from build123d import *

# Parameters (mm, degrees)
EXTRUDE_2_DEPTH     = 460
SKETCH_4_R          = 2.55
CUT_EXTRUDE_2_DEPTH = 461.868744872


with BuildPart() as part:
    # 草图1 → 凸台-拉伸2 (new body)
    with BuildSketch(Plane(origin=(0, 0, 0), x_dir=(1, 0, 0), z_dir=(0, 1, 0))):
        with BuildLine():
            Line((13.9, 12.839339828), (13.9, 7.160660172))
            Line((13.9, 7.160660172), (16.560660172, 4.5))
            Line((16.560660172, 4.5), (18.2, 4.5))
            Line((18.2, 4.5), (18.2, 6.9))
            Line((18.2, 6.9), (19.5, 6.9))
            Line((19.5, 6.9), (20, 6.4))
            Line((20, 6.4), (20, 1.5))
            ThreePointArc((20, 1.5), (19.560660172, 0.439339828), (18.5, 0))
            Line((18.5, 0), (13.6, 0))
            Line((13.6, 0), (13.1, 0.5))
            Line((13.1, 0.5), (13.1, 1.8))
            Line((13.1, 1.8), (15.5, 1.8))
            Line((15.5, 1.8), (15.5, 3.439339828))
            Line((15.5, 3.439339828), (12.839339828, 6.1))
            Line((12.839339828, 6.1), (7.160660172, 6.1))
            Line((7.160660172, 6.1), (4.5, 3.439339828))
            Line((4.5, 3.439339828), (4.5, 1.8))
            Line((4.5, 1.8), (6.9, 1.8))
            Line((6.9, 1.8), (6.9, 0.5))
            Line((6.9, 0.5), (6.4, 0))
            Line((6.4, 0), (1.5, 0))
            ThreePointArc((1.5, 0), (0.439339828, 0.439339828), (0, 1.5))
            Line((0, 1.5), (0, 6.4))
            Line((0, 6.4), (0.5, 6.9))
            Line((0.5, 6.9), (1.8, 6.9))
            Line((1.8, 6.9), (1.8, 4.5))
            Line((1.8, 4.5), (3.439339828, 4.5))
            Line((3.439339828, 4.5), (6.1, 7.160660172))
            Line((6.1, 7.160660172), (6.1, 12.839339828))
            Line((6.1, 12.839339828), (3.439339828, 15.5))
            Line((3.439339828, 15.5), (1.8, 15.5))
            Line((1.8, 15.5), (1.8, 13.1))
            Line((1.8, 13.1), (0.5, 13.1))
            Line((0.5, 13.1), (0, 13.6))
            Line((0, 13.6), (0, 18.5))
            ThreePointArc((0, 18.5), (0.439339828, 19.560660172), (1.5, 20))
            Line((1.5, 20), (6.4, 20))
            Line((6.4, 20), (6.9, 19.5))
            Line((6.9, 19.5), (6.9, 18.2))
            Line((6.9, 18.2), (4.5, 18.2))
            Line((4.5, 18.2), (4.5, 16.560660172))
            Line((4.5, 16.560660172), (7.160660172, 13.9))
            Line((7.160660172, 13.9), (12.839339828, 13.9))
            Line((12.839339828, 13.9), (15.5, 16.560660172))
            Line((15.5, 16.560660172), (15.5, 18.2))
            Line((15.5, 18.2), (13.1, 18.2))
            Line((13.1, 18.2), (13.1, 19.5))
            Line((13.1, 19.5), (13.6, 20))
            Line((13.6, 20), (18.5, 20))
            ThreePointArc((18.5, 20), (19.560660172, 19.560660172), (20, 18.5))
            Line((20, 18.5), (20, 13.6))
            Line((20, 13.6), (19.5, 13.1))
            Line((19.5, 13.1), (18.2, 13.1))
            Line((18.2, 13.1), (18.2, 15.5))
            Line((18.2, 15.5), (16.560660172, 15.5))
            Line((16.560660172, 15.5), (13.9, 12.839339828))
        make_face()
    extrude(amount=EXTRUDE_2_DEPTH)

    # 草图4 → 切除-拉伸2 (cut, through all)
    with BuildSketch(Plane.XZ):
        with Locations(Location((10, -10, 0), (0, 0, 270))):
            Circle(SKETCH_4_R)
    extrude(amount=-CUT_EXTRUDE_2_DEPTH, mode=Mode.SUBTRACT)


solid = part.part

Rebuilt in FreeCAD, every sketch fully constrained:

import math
import FreeCAD as App
import Part
import Sketcher
from FreeCAD import Vector

doc = App.newDocument("Part")
params = doc.addObject("Spreadsheet::Sheet", "Params")
for row, (alias, value) in enumerate([
    ("sketch1_radius", "1.5 mm"),
    ("sketch1_width", "1.3 mm"),
    ("sketch1_width2", "4.9 mm"),
    ("sketch1_width3", "2.4 mm"),
    ("pad1_length", "460 mm"),
    ("sketch2_diameter", "5.1 mm"),
], start=1):
    params.set(f"A{row}", alias)
    params.set(f"B{row}", "=" + value)
    params.setAlias(f"B{row}", alias)

body = doc.addObject("PartDesign::Body", "Body")

# Sketch on XZ plane
sketch1 = body.newObject("Sketcher::SketchObject", "Sketch")
sketch1.AttachmentSupport = (doc.getObject("XZ_Plane"), [""])
sketch1.MapMode = "FlatFace"
sketch1.addGeometry([
    Part.LineSegment(Vector(13.9, -7.16066, 0), Vector(13.9, -12.83934, 0)),  # 0
    Part.LineSegment(Vector(13.9, -12.83934, 0), Vector(16.56066, -15.5, 0)),  # 1
    Part.LineSegment(Vector(16.56066, -15.5, 0), Vector(18.2, -15.5, 0)),  # 2
    Part.LineSegment(Vector(18.2, -15.5, 0), Vector(18.2, -13.1, 0)),  # 3
    Part.LineSegment(Vector(18.2, -13.1, 0), Vector(19.5, -13.1, 0)),  # 4
    Part.LineSegment(Vector(19.5, -13.1, 0), Vector(20, -13.6, 0)),  # 5
    Part.LineSegment(Vector(20, -13.6, 0), Vector(20, -18.5, 0)),  # 6
    Part.ArcOfCircle(Part.Circle(Vector(18.5, -18.5, 0), Vector(0, 0, 1), 1.5), math.radians(-90), math.radians(0)),  # 7
    Part.LineSegment(Vector(18.5, -20, 0), Vector(13.6, -20, 0)),  # 8
    Part.LineSegment(Vector(13.6, -20, 0), Vector(13.1, -19.5, 0)),  # 9
    Part.LineSegment(Vector(13.1, -19.5, 0), Vector(13.1, -18.2, 0)),  # 10
    Part.LineSegment(Vector(13.1, -18.2, 0), Vector(15.5, -18.2, 0)),  # 11
    Part.LineSegment(Vector(15.5, -18.2, 0), Vector(15.5, -16.56066, 0)),  # 12
    Part.LineSegment(Vector(15.5, -16.56066, 0), Vector(12.83934, -13.9, 0)),  # 13
    Part.LineSegment(Vector(12.83934, -13.9, 0), Vector(7.16066, -13.9, 0)),  # 14
    Part.LineSegment(Vector(7.16066, -13.9, 0), Vector(4.5, -16.56066, 0)),  # 15
    Part.LineSegment(Vector(4.5, -16.56066, 0), Vector(4.5, -18.2, 0)),  # 16
    Part.LineSegment(Vector(4.5, -18.2, 0), Vector(6.9, -18.2, 0)),  # 17
    Part.LineSegment(Vector(6.9, -18.2, 0), Vector(6.9, -19.5, 0)),  # 18
    Part.LineSegment(Vector(6.9, -19.5, 0), Vector(6.4, -20, 0)),  # 19
    Part.LineSegment(Vector(6.4, -20, 0), Vector(1.5, -20, 0)),  # 20
    Part.ArcOfCircle(Part.Circle(Vector(1.5, -18.5, 0), Vector(0, 0, 1), 1.5), math.radians(180), math.radians(270)),  # 21
    Part.LineSegment(Vector(0, -18.5, 0), Vector(0, -13.6, 0)),  # 22
    Part.LineSegment(Vector(0, -13.6, 0), Vector(0.5, -13.1, 0)),  # 23
    Part.LineSegment(Vector(0.5, -13.1, 0), Vector(1.8, -13.1, 0)),  # 24
    Part.LineSegment(Vector(1.8, -13.1, 0), Vector(1.8, -15.5, 0)),  # 25
    Part.LineSegment(Vector(1.8, -15.5, 0), Vector(3.43934, -15.5, 0)),  # 26
    Part.LineSegment(Vector(3.43934, -15.5, 0), Vector(6.1, -12.83934, 0)),  # 27
    Part.LineSegment(Vector(6.1, -12.83934, 0), Vector(6.1, -7.16066, 0)),  # 28
    Part.LineSegment(Vector(6.1, -7.16066, 0), Vector(3.43934, -4.5, 0)),  # 29
    Part.LineSegment(Vector(3.43934, -4.5, 0), Vector(1.8, -4.5, 0)),  # 30
    Part.LineSegment(Vector(1.8, -4.5, 0), Vector(1.8, -6.9, 0)),  # 31
    Part.LineSegment(Vector(1.8, -6.9, 0), Vector(0.5, -6.9, 0)),  # 32
    Part.LineSegment(Vector(0.5, -6.9, 0), Vector(0, -6.4, 0)),  # 33
    Part.LineSegment(Vector(0, -6.4, 0), Vector(0, -1.5, 0)),  # 34
    Part.ArcOfCircle(Part.Circle(Vector(1.5, -1.5, 0), Vector(0, 0, 1), 1.5), math.radians(90), math.radians(180)),  # 35
    Part.LineSegment(Vector(1.5, 0, 0), Vector(6.4, 0, 0)),  # 36
    Part.LineSegment(Vector(6.4, 0, 0), Vector(6.9, -0.5, 0)),  # 37
    Part.LineSegment(Vector(6.9, -0.5, 0), Vector(6.9, -1.8, 0)),  # 38
    Part.LineSegment(Vector(6.9, -1.8, 0), Vector(4.5, -1.8, 0)),  # 39
    Part.LineSegment(Vector(4.5, -1.8, 0), Vector(4.5, -3.43934, 0)),  # 40
    Part.LineSegment(Vector(4.5, -3.43934, 0), Vector(7.16066, -6.1, 0)),  # 41
    Part.LineSegment(Vector(7.16066, -6.1, 0), Vector(12.83934, -6.1, 0)),  # 42
    Part.LineSegment(Vector(12.83934, -6.1, 0), Vector(15.5, -3.43934, 0)),  # 43
    Part.LineSegment(Vector(15.5, -3.43934, 0), Vector(15.5, -1.8, 0)),  # 44
    Part.LineSegment(Vector(15.5, -1.8, 0), Vector(13.1, -1.8, 0)),  # 45
    Part.LineSegment(Vector(13.1, -1.8, 0), Vector(13.1, -0.5, 0)),  # 46
    Part.LineSegment(Vector(13.1, -0.5, 0), Vector(13.6, 0, 0)),  # 47
    Part.LineSegment(Vector(13.6, 0, 0), Vector(18.5, 0, 0)),  # 48
    Part.ArcOfCircle(Part.Circle(Vector(18.5, -1.5, 0), Vector(0, 0, 1), 1.5), math.radians(0), math.radians(90)),  # 49
    Part.LineSegment(Vector(20, -1.5, 0), Vector(20, -6.4, 0)),  # 50
    Part.LineSegment(Vector(20, -6.4, 0), Vector(19.5, -6.9, 0)),  # 51
    Part.LineSegment(Vector(19.5, -6.9, 0), Vector(18.2, -6.9, 0)),  # 52
    Part.LineSegment(Vector(18.2, -6.9, 0), Vector(18.2, -4.5, 0)),  # 53
    Part.LineSegment(Vector(18.2, -4.5, 0), Vector(16.56066, -4.5, 0)),  # 54
    Part.LineSegment(Vector(16.56066, -4.5, 0), Vector(13.9, -7.16066, 0)),  # 55
], False)
sketch1.addConstraint([
    Sketcher.Constraint("Coincident", 0, 2, 1, 1),
    Sketcher.Constraint("Coincident", 1, 2, 2, 1),
    Sketcher.Constraint("Coincident", 2, 2, 3, 1),
    Sketcher.Constraint("Coincident", 3, 2, 4, 1),
    Sketcher.Constraint("Coincident", 4, 2, 5, 1),
    Sketcher.Constraint("Coincident", 5, 2, 6, 1),
    Sketcher.Constraint("Tangent", 6, 2, 7, 2),
    Sketcher.Constraint("Tangent", 7, 1, 8, 1),
    Sketcher.Constraint("Coincident", 8, 2, 9, 1),
    Sketcher.Constraint("Coincident", 9, 2, 10, 1),
    Sketcher.Constraint("Coincident", 10, 2, 11, 1),
    Sketcher.Constraint("Coincident", 11, 2, 12, 1),
    Sketcher.Constraint("Coincident", 12, 2, 13, 1),
    Sketcher.Constraint("Coincident", 13, 2, 14, 1),
    Sketcher.Constraint("Coincident", 14, 2, 15, 1),
    Sketcher.Constraint("Coincident", 15, 2, 16, 1),
    Sketcher.Constraint("Coincident", 16, 2, 17, 1),
    Sketcher.Constraint("Coincident", 17, 2, 18, 1),
    Sketcher.Constraint("Coincident", 18, 2, 19, 1),
    Sketcher.Constraint("Coincident", 19, 2, 20, 1),
    Sketcher.Constraint("Tangent", 20, 2, 21, 2),
    Sketcher.Constraint("Tangent", 21, 1, 22, 1),
    Sketcher.Constraint("Coincident", 22, 2, 23, 1),
    Sketcher.Constraint("Coincident", 23, 2, 24, 1),
    Sketcher.Constraint("Coincident", 24, 2, 25, 1),
    Sketcher.Constraint("Coincident", 25, 2, 26, 1),
    Sketcher.Constraint("Coincident", 26, 2, 27, 1),
    Sketcher.Constraint("Coincident", 27, 2, 28, 1),
    Sketcher.Constraint("Coincident", 28, 2, 29, 1),
    Sketcher.Constraint("Coincident", 29, 2, 30, 1),
    Sketcher.Constraint("Coincident", 30, 2, 31, 1),
    Sketcher.Constraint("Coincident", 31, 2, 32, 1),
    Sketcher.Constraint("Coincident", 32, 2, 33, 1),
    Sketcher.Constraint("Coincident", 33, 2, 34, 1),
    Sketcher.Constraint("Tangent", 34, 2, 35, 2),
    Sketcher.Constraint("Tangent", 35, 1, 36, 1),
    Sketcher.Constraint("Coincident", 36, 2, 37, 1),
    Sketcher.Constraint("Coincident", 37, 2, 38, 1),
    Sketcher.Constraint("Coincident", 38, 2, 39, 1),
    Sketcher.Constraint("Coincident", 39, 2, 40, 1),
    Sketcher.Constraint("Coincident", 40, 2, 41, 1),
    Sketcher.Constraint("Coincident", 41, 2, 42, 1),
    Sketcher.Constraint("Coincident", 42, 2, 43, 1),
    Sketcher.Constraint("Coincident", 43, 2, 44, 1),
    Sketcher.Constraint("Coincident", 44, 2, 45, 1),
    Sketcher.Constraint("Coincident", 45, 2, 46, 1),
    Sketcher.Constraint("Coincident", 46, 2, 47, 1),
    Sketcher.Constraint("Coincident", 47, 2, 48, 1),
    Sketcher.Constraint("Tangent", 48, 2, 49, 2),
    Sketcher.Constraint("Tangent", 49, 1, 50, 1),
    Sketcher.Constraint("Coincident", 50, 2, 51, 1),
    Sketcher.Constraint("Coincident", 51, 2, 52, 1),
    Sketcher.Constraint("Coincident", 52, 2, 53, 1),
    Sketcher.Constraint("Coincident", 53, 2, 54, 1),
    Sketcher.Constraint("Coincident", 54, 2, 55, 1),
    Sketcher.Constraint("Coincident", 55, 2, 0, 1),
    Sketcher.Constraint("Vertical", 0),
    Sketcher.Constraint("Horizontal", 2),
    Sketcher.Constraint("Vertical", 3),
    Sketcher.Constraint("Horizontal", 4),
    Sketcher.Constraint("Vertical", 6),
    Sketcher.Constraint("Horizontal", 8),
    Sketcher.Constraint("Vertical", 10),
    Sketcher.Constraint("Horizontal", 11),
    Sketcher.Constraint("Vertical", 12),
    Sketcher.Constraint("Horizontal", 14),
    Sketcher.Constraint("Vertical", 16),
    Sketcher.Constraint("Horizontal", 17),
    Sketcher.Constraint("Vertical", 18),
    Sketcher.Constraint("Horizontal", 20),
    Sketcher.Constraint("Vertical", 22),
    Sketcher.Constraint("Horizontal", 24),
    Sketcher.Constraint("Vertical", 25),
    Sketcher.Constraint("Horizontal", 26),
    Sketcher.Constraint("Vertical", 28),
    Sketcher.Constraint("Horizontal", 30),
    Sketcher.Constraint("Vertical", 31),
    Sketcher.Constraint("Horizontal", 32),
    Sketcher.Constraint("Vertical", 34),
    Sketcher.Constraint("Horizontal", 36),
    Sketcher.Constraint("Vertical", 38),
    Sketcher.Constraint("Horizontal", 39),
    Sketcher.Constraint("Vertical", 40),
    Sketcher.Constraint("Horizontal", 42),
    Sketcher.Constraint("Vertical", 44),
    Sketcher.Constraint("Horizontal", 45),
    Sketcher.Constraint("Vertical", 46),
    Sketcher.Constraint("Horizontal", 48),
    Sketcher.Constraint("Vertical", 50),
    Sketcher.Constraint("Horizontal", 52),
    Sketcher.Constraint("Vertical", 53),
    Sketcher.Constraint("Horizontal", 54),
    Sketcher.Constraint("Equal", 7, 21),
    Sketcher.Constraint("Equal", 21, 35),
    Sketcher.Constraint("Equal", 35, 49),
    Sketcher.Constraint("PointOnObject", 21, 1, -2),
    Sketcher.Constraint("PointOnObject", 33, 2, -2),
    Sketcher.Constraint("PointOnObject", 35, 1, -1),
    Sketcher.Constraint("PointOnObject", 47, 2, -1),
    Sketcher.Constraint("Parallel", 1, 5),
    Sketcher.Constraint("Parallel", 5, 9),
    Sketcher.Constraint("Parallel", 9, 13),
    Sketcher.Constraint("Perpendicular", 13, 15),
    Sketcher.Constraint("Parallel", 15, 19),
    Sketcher.Constraint("Parallel", 19, 23),
    Sketcher.Constraint("Parallel", 23, 27),
    Sketcher.Constraint("Perpendicular", 27, 29),
    Sketcher.Constraint("Parallel", 29, 33),
    Sketcher.Constraint("Parallel", 33, 37),
    Sketcher.Constraint("Parallel", 37, 41),
    Sketcher.Constraint("Perpendicular", 41, 43),
    Sketcher.Constraint("Parallel", 43, 47),
    Sketcher.Constraint("Parallel", 47, 51),
    Sketcher.Constraint("Parallel", 51, 55),
    Sketcher.Constraint("Horizontal", 7, 3, 21, 3),
    Sketcher.Constraint("Horizontal", 12, 2, 15, 2),
    Sketcher.Constraint("Horizontal", 11, 2, 16, 2),
    Sketcher.Constraint("Horizontal", 9, 2, 18, 2),
    Sketcher.Constraint("Horizontal", 5, 2, 22, 2),
    Sketcher.Constraint("Horizontal", 4, 2, 23, 2),
    Sketcher.Constraint("Horizontal", 2, 2, 25, 2),
    Sketcher.Constraint("Horizontal", 0, 2, 27, 2),
    Sketcher.Constraint("Horizontal", 40, 2, 43, 2),
    Sketcher.Constraint("Horizontal", 39, 2, 44, 2),
    Sketcher.Constraint("Horizontal", 37, 2, 46, 2),
    Sketcher.Constraint("Horizontal", 33, 2, 50, 2),
    Sketcher.Constraint("Horizontal", 32, 2, 51, 2),
    Sketcher.Constraint("Horizontal", 30, 2, 53, 2),
    Sketcher.Constraint("Horizontal", 28, 2, 55, 2),
    Sketcher.Constraint("Vertical", 7, 3, 49, 3),
    Sketcher.Constraint("Vertical", 26, 2, 29, 2),
    Sketcher.Constraint("Vertical", 25, 2, 30, 2),
    Sketcher.Constraint("Vertical", 23, 2, 32, 2),
    Sketcher.Constraint("Vertical", 19, 2, 36, 2),
    Sketcher.Constraint("Vertical", 18, 2, 37, 2),
    Sketcher.Constraint("Vertical", 16, 2, 39, 2),
    Sketcher.Constraint("Vertical", 14, 2, 41, 2),
    Sketcher.Constraint("Vertical", 13, 2, 42, 2),
    Sketcher.Constraint("Vertical", 12, 2, 43, 2),
    Sketcher.Constraint("Vertical", 10, 2, 45, 2),
    Sketcher.Constraint("Vertical", 3, 2, 52, 2),
    Sketcher.Constraint("Equal", 11, 17),
    Sketcher.Constraint("Equal", 8, 20),
    Sketcher.Constraint("Equal", 4, 24),
    Sketcher.Constraint("Equal", 2, 26),
    Sketcher.Constraint("Equal", 42, 0),
    Sketcher.Constraint("Equal", 45, 3),
    Sketcher.Constraint("Equal", 48, 6),
    Sketcher.Constraint("Equal", 52, 10),
    Sketcher.Constraint("Equal", 54, 12),
    Sketcher.Constraint("Equal", 25, 31),
    Sketcher.Constraint("Equal", 22, 34),
    Sketcher.Constraint("Equal", 18, 38),
    Sketcher.Constraint("Equal", 16, 40),
    Sketcher.Constraint("Equal", 5, 9),
    Sketcher.Constraint("Equal", 1, 13),
    Sketcher.Constraint("Radius", 7, 1.5),
    Sketcher.Constraint("DistanceX", 4, 1, 4, 2, 1.3),
    Sketcher.Constraint("DistanceX", 8, 2, 8, 1, 4.9),
    Sketcher.Constraint("DistanceX", 11, 1, 11, 2, 2.4),
    Sketcher.Constraint("DistanceX", -1, 1, 5, 2, 20.0),
    Sketcher.Constraint("DistanceY", 7, 3, 1, 2, 3.0),
    Sketcher.Constraint("DistanceX", -1, 1, 0, 2, 13.9),
    Sketcher.Constraint("DistanceX", 2, 1, 2, 2, 1.63934),
])
sketch1.setExpression("Constraints[156]", "Params.sketch1_radius")
sketch1.setExpression("Constraints[157]", "Params.sketch1_width")
sketch1.setExpression("Constraints[158]", "Params.sketch1_width2")
sketch1.setExpression("Constraints[159]", "Params.sketch1_width3")
pad1 = body.newObject("PartDesign::Pad", "Pad")
pad1.Profile = sketch1
pad1.setExpression("Length", "Params.pad1_length")
pad1.Reversed = True

# Sketch on XZ plane
sketch2 = body.newObject("Sketcher::SketchObject", "Sketch001")
sketch2.AttachmentSupport = (doc.getObject("XZ_Plane"), [""])
sketch2.MapMode = "FlatFace"
sketch2.addGeometry(Part.Circle(Vector(10, -10, 0), Vector(0, 0, 1), 2.55), False)
sketch2.addConstraint([
    Sketcher.Constraint("Diameter", 0, 5.1),
    Sketcher.Constraint("DistanceX", -1, 1, 0, 3, 10.0),
    Sketcher.Constraint("DistanceY", 0, 3, -1, 1, 10.0),
])
sketch2.setExpression("Constraints[0]", "Params.sketch2_diameter")
pocket1 = body.newObject("PartDesign::Pocket", "Pocket")
pocket1.Profile = sketch2
pocket1.Type = "ThroughAll"

doc.recompute()
